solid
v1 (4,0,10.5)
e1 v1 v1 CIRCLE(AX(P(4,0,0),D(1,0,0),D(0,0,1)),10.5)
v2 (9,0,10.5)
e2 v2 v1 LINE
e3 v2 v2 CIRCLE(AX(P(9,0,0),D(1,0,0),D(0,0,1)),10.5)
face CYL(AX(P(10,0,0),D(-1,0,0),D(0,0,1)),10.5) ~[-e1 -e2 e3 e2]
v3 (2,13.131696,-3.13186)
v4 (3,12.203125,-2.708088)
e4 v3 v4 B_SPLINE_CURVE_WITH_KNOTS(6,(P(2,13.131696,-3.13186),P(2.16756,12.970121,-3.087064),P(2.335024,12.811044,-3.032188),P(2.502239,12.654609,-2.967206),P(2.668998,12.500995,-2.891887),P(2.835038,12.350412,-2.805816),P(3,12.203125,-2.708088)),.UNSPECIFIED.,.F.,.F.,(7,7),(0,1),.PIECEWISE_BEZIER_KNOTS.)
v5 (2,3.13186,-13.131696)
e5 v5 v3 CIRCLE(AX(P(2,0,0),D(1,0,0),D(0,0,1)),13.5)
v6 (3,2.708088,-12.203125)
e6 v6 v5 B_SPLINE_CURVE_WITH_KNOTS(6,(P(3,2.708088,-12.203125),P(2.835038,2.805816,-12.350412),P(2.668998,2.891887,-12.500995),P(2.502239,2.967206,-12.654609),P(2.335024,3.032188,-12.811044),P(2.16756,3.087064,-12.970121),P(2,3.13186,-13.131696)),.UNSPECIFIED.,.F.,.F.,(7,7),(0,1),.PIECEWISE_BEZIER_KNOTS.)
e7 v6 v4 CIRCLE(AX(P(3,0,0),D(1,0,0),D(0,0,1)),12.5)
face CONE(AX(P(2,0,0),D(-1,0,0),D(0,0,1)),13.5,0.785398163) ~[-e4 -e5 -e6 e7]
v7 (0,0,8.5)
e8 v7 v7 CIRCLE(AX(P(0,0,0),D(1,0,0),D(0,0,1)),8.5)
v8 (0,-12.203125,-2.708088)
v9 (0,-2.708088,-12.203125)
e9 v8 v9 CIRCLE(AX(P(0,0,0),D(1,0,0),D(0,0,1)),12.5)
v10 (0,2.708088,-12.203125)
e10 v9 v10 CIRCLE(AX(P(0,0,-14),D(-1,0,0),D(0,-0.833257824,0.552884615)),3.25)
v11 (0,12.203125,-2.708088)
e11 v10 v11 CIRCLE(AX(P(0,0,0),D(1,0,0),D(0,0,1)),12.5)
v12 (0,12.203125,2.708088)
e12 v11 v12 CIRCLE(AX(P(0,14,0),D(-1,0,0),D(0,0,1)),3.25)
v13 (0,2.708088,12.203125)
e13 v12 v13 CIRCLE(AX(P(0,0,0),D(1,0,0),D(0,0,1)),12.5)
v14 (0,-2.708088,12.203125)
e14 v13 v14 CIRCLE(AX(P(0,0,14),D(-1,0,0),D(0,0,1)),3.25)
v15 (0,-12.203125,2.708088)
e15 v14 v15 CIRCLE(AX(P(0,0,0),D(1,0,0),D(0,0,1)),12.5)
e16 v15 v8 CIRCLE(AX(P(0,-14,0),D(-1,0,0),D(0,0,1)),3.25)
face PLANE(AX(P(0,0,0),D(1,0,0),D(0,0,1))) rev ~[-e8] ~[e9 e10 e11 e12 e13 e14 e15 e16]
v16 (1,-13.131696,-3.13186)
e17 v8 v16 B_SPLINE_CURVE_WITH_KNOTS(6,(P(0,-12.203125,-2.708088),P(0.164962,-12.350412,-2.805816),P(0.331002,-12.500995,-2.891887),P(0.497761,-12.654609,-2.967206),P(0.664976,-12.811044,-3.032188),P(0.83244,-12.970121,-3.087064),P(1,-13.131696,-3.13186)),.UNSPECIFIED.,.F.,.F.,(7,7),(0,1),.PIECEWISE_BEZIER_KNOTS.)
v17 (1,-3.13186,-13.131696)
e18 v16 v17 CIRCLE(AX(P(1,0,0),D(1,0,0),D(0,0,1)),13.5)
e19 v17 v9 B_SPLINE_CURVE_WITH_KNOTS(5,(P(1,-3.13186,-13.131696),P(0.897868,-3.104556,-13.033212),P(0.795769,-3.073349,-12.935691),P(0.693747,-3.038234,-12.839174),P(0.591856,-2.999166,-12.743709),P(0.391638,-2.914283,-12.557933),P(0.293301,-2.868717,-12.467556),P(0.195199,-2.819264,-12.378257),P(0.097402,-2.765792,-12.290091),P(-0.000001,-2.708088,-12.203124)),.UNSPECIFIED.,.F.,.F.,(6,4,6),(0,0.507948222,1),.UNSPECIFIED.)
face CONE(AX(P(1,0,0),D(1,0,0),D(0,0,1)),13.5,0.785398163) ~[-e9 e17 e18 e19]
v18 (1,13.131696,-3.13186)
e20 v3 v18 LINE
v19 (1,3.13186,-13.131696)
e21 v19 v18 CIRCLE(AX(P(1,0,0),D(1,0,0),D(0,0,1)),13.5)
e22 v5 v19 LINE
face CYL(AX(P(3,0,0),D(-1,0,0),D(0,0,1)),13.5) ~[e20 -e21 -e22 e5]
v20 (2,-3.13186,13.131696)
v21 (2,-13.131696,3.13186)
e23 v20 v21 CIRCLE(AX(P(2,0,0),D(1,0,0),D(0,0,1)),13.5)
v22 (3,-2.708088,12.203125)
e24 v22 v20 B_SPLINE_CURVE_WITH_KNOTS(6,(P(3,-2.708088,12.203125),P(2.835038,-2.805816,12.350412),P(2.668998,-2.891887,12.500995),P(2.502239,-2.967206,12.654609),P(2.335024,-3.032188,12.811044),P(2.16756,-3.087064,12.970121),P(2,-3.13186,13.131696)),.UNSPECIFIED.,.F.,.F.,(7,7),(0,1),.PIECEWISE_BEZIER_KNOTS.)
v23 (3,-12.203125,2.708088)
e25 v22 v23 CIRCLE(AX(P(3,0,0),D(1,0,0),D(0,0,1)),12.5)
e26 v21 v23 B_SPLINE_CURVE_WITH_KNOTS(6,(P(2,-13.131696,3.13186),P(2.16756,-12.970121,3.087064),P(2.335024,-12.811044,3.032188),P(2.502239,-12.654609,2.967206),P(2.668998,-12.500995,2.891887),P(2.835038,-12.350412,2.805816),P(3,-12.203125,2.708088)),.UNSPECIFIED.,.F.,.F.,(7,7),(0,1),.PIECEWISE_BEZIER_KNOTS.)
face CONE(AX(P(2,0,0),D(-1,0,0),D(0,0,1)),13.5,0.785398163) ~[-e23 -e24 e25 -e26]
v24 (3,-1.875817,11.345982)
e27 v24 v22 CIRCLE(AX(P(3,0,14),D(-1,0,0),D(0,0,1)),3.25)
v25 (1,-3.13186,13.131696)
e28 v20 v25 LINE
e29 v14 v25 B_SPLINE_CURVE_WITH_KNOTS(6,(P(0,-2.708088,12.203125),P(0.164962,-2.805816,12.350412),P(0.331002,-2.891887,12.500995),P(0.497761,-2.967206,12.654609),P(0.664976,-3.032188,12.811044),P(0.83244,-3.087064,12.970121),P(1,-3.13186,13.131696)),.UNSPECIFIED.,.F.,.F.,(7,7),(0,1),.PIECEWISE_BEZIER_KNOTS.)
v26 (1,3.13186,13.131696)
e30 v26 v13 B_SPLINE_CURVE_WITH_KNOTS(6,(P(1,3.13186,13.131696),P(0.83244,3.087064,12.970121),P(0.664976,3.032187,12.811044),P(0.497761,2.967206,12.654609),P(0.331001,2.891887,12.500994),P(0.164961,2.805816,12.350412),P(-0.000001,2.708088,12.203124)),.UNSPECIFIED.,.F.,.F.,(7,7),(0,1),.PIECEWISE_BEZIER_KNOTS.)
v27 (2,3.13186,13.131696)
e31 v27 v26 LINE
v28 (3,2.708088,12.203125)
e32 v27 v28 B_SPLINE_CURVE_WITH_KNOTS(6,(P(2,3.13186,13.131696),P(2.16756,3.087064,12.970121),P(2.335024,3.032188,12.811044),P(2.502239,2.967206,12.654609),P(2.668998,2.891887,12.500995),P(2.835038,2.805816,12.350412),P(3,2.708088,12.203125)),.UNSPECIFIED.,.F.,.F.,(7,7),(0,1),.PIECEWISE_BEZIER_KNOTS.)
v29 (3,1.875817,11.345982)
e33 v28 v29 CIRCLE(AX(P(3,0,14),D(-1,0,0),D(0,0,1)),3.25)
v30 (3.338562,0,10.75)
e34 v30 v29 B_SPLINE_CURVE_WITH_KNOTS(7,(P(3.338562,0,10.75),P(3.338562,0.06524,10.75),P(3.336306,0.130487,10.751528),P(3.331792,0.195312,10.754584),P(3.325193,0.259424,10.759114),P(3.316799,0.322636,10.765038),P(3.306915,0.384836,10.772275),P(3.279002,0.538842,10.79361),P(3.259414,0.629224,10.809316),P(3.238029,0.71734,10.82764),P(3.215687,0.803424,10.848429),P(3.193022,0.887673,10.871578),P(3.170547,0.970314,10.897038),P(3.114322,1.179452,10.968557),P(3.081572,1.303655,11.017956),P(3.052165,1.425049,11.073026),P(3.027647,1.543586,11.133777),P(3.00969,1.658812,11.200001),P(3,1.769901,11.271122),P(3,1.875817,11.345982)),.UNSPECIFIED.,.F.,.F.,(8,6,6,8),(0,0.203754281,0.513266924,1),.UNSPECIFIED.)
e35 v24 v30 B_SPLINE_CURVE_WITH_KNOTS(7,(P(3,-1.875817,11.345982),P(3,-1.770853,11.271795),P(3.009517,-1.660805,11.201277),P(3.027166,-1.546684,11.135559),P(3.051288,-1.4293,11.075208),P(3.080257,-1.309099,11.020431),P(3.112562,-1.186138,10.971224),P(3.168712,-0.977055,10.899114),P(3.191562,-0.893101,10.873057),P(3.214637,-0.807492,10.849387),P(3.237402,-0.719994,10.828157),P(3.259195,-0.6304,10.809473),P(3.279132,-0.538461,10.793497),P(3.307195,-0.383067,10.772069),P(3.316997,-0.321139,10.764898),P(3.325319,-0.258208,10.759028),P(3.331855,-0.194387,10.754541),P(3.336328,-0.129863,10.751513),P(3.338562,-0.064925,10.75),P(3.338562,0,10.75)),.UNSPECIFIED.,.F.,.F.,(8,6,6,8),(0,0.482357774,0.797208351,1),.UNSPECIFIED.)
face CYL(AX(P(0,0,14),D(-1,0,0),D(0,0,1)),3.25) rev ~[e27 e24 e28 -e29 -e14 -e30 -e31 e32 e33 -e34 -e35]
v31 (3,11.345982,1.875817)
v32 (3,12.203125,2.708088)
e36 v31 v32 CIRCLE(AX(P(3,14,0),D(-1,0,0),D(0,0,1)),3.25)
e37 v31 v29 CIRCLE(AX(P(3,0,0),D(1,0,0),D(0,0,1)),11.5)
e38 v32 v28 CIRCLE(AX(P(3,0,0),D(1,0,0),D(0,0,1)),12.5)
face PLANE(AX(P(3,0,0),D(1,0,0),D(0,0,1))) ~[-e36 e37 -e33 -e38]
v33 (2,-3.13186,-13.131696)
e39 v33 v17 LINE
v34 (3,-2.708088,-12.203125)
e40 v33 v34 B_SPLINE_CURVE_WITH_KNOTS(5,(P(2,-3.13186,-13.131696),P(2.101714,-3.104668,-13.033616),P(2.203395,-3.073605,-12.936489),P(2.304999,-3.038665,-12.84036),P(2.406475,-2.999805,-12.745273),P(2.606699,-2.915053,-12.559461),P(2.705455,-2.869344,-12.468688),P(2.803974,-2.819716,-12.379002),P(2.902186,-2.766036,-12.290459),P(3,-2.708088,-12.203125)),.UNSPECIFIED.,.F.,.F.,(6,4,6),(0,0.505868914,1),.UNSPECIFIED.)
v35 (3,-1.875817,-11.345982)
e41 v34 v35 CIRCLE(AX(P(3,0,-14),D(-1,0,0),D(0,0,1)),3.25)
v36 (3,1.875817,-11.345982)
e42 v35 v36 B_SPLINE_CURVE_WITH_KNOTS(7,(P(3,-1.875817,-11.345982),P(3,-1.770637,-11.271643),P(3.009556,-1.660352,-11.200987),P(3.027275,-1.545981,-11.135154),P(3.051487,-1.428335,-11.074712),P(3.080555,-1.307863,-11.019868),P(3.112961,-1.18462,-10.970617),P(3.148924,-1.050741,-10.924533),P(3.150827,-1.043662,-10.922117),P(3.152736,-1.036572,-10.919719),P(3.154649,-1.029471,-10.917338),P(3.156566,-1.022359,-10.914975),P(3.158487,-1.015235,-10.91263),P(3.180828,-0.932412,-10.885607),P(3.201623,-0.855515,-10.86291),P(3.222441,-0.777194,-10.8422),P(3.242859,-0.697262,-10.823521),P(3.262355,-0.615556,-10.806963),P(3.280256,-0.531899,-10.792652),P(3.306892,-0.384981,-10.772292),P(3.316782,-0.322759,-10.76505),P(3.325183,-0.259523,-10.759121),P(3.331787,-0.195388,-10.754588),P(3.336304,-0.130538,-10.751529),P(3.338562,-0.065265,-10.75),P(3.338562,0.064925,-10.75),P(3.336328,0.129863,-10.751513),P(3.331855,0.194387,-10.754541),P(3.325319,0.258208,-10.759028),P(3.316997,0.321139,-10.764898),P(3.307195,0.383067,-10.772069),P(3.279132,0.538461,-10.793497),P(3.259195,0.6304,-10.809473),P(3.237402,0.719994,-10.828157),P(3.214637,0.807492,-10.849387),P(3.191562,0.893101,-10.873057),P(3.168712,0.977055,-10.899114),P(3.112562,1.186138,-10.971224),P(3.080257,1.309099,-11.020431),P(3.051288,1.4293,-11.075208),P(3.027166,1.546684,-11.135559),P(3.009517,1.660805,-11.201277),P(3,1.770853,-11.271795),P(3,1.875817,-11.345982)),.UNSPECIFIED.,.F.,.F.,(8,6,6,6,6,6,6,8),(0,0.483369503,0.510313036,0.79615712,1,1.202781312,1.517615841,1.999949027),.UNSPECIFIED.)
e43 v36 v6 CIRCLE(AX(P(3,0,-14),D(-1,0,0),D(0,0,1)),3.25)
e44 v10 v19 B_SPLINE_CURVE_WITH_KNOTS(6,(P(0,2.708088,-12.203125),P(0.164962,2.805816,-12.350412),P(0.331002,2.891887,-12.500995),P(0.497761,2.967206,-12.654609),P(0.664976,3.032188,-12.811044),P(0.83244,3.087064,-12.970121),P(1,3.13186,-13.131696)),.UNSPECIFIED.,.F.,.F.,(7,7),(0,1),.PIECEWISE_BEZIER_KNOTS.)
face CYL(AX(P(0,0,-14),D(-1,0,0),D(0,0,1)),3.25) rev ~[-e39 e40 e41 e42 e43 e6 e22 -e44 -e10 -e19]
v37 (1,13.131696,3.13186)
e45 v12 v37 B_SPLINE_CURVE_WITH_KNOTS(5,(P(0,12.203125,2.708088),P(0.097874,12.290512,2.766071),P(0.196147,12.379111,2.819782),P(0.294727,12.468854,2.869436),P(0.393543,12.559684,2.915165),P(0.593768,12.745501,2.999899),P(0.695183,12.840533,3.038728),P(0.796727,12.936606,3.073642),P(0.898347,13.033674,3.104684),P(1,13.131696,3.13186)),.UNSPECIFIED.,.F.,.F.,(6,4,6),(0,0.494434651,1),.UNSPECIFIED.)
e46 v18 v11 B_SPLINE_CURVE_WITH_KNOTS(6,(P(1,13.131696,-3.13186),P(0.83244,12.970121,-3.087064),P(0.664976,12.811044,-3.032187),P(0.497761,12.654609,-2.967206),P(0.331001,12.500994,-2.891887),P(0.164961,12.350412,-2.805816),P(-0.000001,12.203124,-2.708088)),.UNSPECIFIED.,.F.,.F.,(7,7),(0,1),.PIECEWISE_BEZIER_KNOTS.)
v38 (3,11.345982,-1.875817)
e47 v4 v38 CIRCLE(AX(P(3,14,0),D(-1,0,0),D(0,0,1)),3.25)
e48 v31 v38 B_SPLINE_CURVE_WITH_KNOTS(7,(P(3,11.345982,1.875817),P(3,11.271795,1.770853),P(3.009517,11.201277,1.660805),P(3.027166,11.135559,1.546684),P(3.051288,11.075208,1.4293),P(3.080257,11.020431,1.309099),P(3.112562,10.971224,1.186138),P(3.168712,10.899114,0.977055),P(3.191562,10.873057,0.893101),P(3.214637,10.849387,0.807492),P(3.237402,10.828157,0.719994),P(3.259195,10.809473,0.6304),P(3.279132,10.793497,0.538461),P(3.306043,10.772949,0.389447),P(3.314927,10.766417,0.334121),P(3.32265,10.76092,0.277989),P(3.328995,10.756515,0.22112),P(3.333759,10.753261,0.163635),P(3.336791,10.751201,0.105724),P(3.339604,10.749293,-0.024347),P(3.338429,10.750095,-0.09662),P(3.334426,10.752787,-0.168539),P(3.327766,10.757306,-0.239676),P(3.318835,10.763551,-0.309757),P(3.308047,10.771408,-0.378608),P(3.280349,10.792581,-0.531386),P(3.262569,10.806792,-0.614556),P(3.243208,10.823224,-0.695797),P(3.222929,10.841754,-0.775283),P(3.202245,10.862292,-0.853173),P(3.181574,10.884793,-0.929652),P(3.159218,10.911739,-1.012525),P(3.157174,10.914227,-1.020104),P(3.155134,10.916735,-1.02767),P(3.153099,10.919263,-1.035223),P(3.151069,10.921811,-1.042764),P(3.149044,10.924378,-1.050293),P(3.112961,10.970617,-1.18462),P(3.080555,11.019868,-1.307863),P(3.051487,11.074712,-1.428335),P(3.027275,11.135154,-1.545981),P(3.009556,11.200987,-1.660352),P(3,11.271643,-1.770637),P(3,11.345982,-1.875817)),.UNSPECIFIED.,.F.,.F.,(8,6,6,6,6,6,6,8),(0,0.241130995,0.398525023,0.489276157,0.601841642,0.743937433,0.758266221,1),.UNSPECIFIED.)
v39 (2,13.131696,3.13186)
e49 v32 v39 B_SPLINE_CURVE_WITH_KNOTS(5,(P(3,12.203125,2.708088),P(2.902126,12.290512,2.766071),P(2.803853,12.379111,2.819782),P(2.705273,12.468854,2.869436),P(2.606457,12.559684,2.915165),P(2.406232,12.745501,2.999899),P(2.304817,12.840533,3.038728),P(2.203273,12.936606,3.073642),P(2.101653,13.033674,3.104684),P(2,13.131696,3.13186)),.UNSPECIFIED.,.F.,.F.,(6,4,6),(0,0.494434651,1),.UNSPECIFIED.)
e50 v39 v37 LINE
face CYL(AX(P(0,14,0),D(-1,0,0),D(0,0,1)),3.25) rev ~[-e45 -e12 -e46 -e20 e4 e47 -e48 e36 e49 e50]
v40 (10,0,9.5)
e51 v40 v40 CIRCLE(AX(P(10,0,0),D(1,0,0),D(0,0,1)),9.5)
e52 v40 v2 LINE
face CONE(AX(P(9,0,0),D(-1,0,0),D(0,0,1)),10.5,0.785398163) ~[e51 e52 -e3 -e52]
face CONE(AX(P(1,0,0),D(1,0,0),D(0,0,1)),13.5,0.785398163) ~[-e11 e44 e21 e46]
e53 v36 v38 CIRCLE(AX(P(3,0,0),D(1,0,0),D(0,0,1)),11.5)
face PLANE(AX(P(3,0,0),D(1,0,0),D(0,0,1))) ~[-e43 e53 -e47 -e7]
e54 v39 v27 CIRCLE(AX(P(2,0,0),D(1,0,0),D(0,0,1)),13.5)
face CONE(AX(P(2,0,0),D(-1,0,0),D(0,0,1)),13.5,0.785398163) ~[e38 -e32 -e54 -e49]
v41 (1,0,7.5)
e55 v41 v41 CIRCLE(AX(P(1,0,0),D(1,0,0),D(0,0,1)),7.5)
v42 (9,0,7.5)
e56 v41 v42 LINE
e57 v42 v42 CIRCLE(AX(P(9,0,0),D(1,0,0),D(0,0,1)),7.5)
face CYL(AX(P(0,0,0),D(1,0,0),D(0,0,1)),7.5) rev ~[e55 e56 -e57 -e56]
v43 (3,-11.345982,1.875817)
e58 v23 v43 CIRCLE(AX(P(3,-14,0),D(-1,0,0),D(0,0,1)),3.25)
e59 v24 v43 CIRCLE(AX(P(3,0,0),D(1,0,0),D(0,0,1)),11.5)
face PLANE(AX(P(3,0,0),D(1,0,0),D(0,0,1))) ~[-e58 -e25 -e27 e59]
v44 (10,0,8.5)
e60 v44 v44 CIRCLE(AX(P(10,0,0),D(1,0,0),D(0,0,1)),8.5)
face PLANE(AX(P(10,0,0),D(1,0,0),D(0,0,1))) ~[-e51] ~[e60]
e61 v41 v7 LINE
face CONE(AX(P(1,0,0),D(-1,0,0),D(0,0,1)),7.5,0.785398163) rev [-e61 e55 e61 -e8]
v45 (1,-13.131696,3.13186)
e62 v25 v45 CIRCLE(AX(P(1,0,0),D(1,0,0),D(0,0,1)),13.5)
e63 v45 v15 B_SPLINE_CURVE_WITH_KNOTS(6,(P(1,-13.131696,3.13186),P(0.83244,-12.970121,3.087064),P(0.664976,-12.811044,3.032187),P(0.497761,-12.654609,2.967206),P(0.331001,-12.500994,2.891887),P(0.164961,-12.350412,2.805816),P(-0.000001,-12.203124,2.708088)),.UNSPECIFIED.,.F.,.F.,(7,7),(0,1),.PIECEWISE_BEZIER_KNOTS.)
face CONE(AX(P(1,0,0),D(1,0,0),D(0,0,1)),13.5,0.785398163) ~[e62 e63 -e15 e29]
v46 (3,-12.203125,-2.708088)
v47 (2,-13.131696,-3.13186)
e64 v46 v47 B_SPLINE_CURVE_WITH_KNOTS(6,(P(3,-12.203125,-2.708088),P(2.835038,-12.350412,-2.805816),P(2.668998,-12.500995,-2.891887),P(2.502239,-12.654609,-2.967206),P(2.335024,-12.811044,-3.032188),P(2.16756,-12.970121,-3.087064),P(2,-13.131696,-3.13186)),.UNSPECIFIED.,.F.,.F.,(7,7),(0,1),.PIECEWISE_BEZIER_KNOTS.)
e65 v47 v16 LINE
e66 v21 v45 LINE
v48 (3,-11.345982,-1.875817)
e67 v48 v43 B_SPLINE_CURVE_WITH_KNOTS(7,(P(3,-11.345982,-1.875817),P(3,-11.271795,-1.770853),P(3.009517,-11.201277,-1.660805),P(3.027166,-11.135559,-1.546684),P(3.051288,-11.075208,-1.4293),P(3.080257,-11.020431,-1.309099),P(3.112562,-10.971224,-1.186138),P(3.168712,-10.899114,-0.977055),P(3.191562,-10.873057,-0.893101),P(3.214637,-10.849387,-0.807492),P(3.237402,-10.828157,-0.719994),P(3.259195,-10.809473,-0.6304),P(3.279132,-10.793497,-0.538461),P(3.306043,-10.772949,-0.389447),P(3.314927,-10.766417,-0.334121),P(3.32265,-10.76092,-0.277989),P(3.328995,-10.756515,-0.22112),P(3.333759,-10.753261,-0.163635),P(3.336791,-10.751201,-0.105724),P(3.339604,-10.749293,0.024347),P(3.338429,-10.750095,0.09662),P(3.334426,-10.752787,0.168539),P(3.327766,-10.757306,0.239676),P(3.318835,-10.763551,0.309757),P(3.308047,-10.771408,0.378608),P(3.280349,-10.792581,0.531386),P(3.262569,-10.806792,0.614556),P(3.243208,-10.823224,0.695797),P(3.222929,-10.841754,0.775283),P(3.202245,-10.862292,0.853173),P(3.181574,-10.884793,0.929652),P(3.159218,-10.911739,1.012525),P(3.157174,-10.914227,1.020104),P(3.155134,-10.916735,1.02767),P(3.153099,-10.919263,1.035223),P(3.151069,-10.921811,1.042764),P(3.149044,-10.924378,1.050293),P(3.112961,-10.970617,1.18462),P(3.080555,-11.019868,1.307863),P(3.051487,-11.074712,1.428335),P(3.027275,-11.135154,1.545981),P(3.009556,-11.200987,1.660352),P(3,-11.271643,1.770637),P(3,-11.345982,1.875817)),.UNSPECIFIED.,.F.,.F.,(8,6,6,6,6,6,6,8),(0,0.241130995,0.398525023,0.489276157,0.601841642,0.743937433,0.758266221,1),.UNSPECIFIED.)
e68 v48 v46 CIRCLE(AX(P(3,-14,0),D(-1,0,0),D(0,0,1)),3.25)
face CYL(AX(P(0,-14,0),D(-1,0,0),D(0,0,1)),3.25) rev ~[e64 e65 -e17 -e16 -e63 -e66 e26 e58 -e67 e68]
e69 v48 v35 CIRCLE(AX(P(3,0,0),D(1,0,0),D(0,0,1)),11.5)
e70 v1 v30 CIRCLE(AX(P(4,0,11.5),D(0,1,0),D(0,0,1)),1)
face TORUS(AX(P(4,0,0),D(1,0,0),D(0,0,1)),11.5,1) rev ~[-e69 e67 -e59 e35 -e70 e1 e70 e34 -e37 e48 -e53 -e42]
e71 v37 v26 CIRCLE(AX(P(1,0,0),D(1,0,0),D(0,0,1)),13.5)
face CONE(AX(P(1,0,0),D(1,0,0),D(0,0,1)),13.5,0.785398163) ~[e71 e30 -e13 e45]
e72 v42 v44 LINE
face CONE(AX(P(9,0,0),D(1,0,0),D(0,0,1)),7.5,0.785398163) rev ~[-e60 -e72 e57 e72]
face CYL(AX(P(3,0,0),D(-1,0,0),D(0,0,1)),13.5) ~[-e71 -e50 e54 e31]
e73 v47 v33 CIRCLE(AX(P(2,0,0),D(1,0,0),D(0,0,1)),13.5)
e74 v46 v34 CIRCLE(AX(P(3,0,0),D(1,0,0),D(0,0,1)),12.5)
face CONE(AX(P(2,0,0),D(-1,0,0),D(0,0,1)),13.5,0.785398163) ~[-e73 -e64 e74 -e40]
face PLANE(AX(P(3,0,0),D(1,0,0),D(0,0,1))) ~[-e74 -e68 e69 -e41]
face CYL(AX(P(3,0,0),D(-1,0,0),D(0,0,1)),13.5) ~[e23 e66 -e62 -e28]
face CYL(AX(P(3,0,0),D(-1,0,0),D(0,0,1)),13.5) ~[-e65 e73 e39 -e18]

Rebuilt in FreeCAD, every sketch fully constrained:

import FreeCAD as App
import Part
import Sketcher

V = App.Vector


def edges_at(feature, points):
    """Names of the edges that pass closest to the given points."""
    edges = feature.Shape.Edges
    near = lambda p: min(range(len(edges)), key=lambda i: edges[i].distToShape(Part.Vertex(*p))[0])
    return sorted({f"Edge{near(p) + 1}" for p in points})

doc = App.newDocument("Part")
params = doc.addObject("Spreadsheet::Sheet", "Params")
for row, (alias, value) in enumerate([
    ("sketch1_width", "10 mm"),
    ("sketch1_width2", "7 mm"),
    ("revolution_angle", "360 deg"),
    ("chamfer_size", "1 mm"),
    ("fillet_radius", "1 mm"),
    ("sketch2_diameter", "6.5 mm"),
    ("pocket1_length", "10 mm"),
], start=1):
    params.set(f"A{row}", alias)
    params.set(f"B{row}", "=" + value)
    params.setAlias(f"B{row}", alias)

body = doc.addObject("PartDesign::Body", "Body")

sketch1 = doc.addObject("Sketcher::SketchObject", "Sketch")
body.addObject(sketch1)
sketch1.AttachmentSupport = (doc.XY_Plane, [""])
sketch1.MapMode = "FlatFace"
sketch1.addGeometry([
    Part.LineSegment(V(0, 7.5, 0), V(10, 7.5, 0)),
    Part.LineSegment(V(10, 7.5, 0), V(10, 10.5, 0)),
    Part.LineSegment(V(10, 10.5, 0), V(3, 10.5, 0)),
    Part.LineSegment(V(3, 10.5, 0), V(3, 13.5, 0)),
    Part.LineSegment(V(3, 13.5, 0), V(0, 13.5, 0)),
    Part.LineSegment(V(0, 13.5, 0), V(0, 7.5, 0)),
], False)
sketch1.addConstraint([
    Sketcher.Constraint("Coincident", 0, 2, 1, 1),
    Sketcher.Constraint("Coincident", 1, 2, 2, 1),
    Sketcher.Constraint("Coincident", 2, 2, 3, 1),
    Sketcher.Constraint("Coincident", 3, 2, 4, 1),
    Sketcher.Constraint("Coincident", 4, 2, 5, 1),
    Sketcher.Constraint("Coincident", 5, 2, 0, 1),
    Sketcher.Constraint("Horizontal", 0),
    Sketcher.Constraint("Vertical", 1),
    Sketcher.Constraint("Horizontal", 2),
    Sketcher.Constraint("Vertical", 3),
    Sketcher.Constraint("Horizontal", 4),
    Sketcher.Constraint("Vertical", 5),
    Sketcher.Constraint("PointOnObject", 4, 2, -2),
    Sketcher.Constraint("Equal", 4, 1),
    Sketcher.Constraint("Equal", 1, 3),
    Sketcher.Constraint("DistanceX", 0, 1, 0, 2, 10.0),
    Sketcher.Constraint("DistanceX", 2, 2, 2, 1, 7.0),
    Sketcher.Constraint("DistanceY", -1, 1, 0, 2, 7.5),
])
sketch1.setExpression("Constraints[15]", "Params.sketch1_width")
sketch1.setExpression("Constraints[16]", "Params.sketch1_width2")
revolution = doc.addObject("PartDesign::Revolution", "Revolution")
body.addObject(revolution)
revolution.Profile = sketch1
revolution.ReferenceAxis = (sketch1, ["H_Axis"])
revolution.setExpression("Angle", "Params.revolution_angle")
doc.recompute()

chamfer = doc.addObject("PartDesign::Chamfer", "Chamfer")
body.addObject(chamfer)
chamfer.Base = (revolution, edges_at(revolution, [
    (0, 0, -13.5),
    (3, 0, -13.5),
    (10, 0, -10.5),
    (10, 0, -7.5),
    (0, 0, -7.5),
]))
chamfer.setExpression("Size", "Params.chamfer_size")
doc.recompute()

fillet = doc.addObject("PartDesign::Fillet", "Fillet")
body.addObject(fillet)
fillet.Base = (chamfer, edges_at(chamfer, [(3, 0, -10.5)]))
fillet.setExpression("Radius", "Params.fillet_radius")

sketch2 = doc.addObject("Sketcher::SketchObject", "Sketch001")
body.addObject(sketch2)
sketch2.AttachmentSupport = (doc.YZ_Plane, [""])
sketch2.MapMode = "FlatFace"
sketch2.addGeometry([
    Part.Circle(V(14, 0, 0), V(0, 0, 1), 3.2),
    Part.Circle(V(0, -14, 0), V(0, 0, 1), 3.2),
    Part.Circle(V(-14, 0, 0), V(0, 0, 1), 3.2),
    Part.Circle(V(0, 14, 0), V(0, 0, 1), 3.2),
], False)
sketch2.addConstraint([
    Sketcher.Constraint("Equal", 0, 1),
    Sketcher.Constraint("Equal", 1, 2),
    Sketcher.Constraint("Equal", 2, 3),
    Sketcher.Constraint("Symmetric", 0, 3, 2, 3, -1, 1),
    Sketcher.Constraint("Symmetric", 1, 3, 3, 3, -1, 1),
    Sketcher.Constraint("PointOnObject", 0, 3, -1),
    Sketcher.Constraint("PointOnObject", 1, 3, -2),
    Sketcher.Constraint("Diameter", 0, 6.5),
    Sketcher.Constraint("DistanceX", -1, 1, 0, 3, 14.0),
    Sketcher.Constraint("DistanceY", 1, 3, -1, 1, 14.0),
])
sketch2.setExpression("Constraints[7]", "Params.sketch2_diameter")
pocket1 = doc.addObject("PartDesign::Pocket", "Pocket")
body.addObject(pocket1)
pocket1.Profile = sketch2
pocket1.setExpression("Length", "Params.pocket1_length")
pocket1.Reversed = True

doc.recompute()
